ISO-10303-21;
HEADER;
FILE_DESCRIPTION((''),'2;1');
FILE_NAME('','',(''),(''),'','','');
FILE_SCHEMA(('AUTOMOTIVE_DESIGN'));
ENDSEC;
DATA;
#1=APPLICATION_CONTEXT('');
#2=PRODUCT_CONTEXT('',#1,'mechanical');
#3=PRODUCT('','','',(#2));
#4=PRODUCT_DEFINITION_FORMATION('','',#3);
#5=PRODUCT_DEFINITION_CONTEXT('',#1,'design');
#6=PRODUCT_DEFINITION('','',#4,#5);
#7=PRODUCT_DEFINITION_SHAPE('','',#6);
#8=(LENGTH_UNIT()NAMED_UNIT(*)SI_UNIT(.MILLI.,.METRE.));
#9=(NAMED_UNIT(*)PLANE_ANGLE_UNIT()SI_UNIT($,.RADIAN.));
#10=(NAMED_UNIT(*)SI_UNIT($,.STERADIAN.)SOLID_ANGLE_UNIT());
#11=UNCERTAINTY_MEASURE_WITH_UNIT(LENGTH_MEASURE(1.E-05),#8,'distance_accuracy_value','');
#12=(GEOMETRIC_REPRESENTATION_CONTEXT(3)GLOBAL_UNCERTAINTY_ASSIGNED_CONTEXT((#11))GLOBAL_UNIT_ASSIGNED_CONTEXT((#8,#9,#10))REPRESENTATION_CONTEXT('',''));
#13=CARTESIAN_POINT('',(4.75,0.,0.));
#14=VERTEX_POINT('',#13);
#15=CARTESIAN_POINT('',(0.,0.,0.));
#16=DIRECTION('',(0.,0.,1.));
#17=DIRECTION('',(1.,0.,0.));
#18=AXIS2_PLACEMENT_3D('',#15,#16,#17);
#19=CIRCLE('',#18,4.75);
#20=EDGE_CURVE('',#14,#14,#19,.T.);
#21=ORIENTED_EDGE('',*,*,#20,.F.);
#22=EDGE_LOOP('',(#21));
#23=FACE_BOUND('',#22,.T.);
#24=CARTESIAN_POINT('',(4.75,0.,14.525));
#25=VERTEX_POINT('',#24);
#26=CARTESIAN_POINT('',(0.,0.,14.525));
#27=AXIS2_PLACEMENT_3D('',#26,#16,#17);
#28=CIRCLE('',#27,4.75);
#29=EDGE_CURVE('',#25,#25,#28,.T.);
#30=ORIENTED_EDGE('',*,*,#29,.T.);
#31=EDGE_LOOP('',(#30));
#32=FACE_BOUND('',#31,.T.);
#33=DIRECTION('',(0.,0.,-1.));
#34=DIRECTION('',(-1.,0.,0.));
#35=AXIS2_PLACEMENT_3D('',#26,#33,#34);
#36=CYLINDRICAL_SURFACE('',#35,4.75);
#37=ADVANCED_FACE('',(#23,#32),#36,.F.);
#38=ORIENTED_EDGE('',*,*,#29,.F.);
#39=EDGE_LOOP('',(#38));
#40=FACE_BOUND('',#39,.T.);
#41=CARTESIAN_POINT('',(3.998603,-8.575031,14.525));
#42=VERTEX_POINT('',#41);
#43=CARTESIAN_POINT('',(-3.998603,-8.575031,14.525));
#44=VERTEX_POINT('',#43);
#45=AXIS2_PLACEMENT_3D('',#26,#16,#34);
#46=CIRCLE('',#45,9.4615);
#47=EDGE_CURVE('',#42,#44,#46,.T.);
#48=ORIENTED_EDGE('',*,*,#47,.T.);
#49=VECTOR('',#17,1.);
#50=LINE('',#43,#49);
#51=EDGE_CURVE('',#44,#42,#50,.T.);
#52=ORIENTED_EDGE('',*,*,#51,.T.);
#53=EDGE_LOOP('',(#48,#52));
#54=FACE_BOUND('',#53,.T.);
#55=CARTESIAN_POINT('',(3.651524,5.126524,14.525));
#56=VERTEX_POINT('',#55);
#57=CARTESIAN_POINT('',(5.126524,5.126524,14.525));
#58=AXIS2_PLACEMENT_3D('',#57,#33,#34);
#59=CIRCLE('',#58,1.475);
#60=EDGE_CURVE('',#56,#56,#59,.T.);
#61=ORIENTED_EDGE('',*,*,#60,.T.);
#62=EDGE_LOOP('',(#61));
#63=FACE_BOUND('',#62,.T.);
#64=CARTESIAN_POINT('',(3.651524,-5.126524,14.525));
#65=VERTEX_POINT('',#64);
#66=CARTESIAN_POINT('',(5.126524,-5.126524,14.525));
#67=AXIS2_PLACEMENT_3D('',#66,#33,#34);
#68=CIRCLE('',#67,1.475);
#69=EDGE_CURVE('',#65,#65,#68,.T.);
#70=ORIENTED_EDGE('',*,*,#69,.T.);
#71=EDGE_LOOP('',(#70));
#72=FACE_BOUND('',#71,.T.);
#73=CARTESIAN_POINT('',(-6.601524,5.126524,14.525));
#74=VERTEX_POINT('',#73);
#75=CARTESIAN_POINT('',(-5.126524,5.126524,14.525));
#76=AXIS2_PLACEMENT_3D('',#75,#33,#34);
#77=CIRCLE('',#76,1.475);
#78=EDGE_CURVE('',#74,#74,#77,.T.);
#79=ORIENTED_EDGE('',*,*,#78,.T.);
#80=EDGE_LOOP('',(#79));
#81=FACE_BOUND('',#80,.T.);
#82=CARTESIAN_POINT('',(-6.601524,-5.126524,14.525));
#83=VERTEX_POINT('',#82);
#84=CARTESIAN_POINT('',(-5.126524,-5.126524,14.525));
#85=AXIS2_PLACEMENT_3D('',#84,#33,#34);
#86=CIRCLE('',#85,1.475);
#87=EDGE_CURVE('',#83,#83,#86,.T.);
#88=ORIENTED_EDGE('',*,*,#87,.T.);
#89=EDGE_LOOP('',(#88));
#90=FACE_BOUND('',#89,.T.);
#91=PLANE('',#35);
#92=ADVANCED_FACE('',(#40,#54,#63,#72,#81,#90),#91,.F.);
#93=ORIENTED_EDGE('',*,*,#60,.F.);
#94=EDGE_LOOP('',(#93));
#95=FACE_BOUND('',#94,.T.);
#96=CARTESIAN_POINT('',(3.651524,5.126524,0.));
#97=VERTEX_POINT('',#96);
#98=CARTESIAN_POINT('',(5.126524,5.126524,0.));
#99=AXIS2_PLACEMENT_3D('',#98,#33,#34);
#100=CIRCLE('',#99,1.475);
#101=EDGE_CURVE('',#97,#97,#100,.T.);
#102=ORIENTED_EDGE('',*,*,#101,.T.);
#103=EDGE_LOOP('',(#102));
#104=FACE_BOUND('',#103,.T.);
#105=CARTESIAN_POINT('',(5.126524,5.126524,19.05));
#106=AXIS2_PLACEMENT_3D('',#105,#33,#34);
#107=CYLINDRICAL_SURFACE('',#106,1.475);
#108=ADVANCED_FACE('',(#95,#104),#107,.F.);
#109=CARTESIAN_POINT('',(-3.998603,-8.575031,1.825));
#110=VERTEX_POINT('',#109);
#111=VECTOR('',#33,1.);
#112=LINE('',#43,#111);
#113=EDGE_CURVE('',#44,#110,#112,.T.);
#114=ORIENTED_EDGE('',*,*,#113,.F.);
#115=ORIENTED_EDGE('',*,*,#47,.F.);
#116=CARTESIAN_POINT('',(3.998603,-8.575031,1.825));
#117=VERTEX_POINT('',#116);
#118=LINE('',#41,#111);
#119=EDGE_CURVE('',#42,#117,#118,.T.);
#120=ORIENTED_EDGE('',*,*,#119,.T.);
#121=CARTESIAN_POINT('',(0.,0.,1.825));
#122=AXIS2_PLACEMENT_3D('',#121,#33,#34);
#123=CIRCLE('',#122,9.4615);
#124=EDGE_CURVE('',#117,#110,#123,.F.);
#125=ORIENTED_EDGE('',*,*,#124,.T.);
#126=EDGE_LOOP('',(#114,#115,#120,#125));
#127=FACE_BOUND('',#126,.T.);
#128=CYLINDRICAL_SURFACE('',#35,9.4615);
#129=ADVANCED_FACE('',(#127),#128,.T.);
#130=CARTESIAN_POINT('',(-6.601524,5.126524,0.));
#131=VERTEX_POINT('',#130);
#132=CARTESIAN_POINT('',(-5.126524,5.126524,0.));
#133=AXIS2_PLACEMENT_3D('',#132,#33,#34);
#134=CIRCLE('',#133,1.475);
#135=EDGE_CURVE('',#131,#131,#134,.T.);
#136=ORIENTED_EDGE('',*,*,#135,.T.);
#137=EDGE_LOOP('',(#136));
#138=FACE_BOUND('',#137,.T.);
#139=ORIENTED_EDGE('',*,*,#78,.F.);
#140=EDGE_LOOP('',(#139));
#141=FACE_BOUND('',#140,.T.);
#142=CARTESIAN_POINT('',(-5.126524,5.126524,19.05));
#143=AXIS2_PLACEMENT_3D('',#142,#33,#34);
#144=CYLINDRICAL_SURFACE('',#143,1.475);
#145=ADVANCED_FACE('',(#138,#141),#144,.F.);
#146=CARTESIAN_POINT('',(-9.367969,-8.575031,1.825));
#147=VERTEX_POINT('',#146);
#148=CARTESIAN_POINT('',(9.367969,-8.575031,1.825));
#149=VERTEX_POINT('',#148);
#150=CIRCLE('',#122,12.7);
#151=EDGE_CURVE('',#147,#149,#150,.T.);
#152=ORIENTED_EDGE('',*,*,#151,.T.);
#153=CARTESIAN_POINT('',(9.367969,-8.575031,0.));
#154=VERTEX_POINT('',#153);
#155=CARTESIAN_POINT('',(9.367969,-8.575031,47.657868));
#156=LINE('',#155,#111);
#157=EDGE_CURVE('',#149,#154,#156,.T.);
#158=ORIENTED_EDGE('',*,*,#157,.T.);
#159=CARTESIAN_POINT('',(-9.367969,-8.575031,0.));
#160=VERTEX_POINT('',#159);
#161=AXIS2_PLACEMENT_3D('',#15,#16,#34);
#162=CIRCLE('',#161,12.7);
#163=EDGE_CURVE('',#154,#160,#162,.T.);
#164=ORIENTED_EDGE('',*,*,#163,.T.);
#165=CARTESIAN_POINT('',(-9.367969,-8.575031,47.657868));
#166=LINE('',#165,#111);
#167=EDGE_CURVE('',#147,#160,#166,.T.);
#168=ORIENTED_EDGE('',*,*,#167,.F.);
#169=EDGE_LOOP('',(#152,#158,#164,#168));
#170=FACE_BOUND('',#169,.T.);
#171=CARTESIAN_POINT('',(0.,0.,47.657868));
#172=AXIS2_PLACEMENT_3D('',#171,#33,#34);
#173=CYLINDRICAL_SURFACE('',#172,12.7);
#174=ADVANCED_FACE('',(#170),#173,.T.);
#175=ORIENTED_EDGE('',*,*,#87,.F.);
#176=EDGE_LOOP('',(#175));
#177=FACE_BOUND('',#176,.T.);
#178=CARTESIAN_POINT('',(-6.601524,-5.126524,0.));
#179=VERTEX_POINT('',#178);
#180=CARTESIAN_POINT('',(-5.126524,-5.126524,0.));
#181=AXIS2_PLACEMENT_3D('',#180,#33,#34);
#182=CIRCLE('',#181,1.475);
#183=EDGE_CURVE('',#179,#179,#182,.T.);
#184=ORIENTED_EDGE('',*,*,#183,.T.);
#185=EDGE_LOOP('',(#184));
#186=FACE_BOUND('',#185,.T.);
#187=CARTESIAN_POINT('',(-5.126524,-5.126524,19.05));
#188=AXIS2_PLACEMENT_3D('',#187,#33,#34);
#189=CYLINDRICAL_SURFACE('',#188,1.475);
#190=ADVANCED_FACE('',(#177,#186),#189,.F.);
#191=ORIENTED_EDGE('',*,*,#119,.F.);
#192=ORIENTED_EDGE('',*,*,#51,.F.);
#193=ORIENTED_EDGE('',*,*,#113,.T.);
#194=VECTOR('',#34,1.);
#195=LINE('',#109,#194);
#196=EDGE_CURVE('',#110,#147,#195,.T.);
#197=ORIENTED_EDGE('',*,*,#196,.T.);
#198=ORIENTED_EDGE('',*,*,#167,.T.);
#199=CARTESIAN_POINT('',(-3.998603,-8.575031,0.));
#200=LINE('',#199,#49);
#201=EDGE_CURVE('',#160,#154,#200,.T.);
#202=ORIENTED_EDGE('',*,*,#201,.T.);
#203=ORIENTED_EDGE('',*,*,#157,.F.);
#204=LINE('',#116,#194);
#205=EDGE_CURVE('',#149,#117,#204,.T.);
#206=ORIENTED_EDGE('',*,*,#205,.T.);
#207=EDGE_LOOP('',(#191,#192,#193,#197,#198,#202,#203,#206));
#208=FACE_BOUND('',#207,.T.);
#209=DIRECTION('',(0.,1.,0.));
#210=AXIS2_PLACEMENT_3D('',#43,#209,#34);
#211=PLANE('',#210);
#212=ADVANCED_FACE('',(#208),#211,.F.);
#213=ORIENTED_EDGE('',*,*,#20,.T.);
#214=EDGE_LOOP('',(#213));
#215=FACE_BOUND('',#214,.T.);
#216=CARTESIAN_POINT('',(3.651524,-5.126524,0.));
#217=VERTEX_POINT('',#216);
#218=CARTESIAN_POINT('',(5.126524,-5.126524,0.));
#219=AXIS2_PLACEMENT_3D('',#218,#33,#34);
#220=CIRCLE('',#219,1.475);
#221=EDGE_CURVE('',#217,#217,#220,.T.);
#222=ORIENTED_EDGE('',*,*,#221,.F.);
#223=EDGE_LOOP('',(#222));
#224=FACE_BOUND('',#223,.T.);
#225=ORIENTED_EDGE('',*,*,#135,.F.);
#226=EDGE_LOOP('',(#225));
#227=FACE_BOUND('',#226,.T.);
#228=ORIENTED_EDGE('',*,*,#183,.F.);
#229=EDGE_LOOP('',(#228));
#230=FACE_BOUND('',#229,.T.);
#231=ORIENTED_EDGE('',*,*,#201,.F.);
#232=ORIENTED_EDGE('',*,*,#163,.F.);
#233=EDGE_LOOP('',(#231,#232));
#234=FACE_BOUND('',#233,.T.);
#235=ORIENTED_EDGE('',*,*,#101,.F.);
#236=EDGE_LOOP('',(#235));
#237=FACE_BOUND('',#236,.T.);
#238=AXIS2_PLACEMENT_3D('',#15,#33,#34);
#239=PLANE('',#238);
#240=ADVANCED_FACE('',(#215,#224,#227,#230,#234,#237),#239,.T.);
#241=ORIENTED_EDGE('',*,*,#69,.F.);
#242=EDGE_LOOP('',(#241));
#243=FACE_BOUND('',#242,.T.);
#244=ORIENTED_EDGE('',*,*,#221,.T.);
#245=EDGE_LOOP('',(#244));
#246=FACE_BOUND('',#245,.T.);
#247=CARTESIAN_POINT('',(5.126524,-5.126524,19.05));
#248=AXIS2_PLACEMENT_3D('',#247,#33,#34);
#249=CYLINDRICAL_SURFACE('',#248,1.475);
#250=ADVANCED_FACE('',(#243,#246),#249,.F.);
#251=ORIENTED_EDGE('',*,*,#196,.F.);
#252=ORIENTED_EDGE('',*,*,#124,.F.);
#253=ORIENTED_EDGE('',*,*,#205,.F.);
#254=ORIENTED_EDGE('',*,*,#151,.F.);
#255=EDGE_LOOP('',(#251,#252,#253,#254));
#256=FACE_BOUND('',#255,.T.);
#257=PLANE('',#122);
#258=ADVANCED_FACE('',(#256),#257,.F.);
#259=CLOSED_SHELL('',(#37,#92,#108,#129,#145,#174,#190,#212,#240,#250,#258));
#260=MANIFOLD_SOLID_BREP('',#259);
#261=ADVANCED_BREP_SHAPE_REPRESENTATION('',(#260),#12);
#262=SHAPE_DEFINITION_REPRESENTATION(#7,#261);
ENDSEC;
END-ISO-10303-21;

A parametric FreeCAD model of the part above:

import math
import FreeCAD as App
import Part
import Sketcher
from FreeCAD import Vector
Q = App.Units.Quantity

doc = App.newDocument("Part")
body = doc.addObject("PartDesign::Body", "Body")

sketch1 = body.newObject("Sketcher::SketchObject", "Sketch")
sketch1.AttachmentSupport = (doc.getObject("XY_Plane"), [""])
sketch1.MapMode = "FlatFace"
sketch1.addGeometry([
    Part.LineSegment(Vector(-4, -8.6, 0), Vector(4, -8.6, 0)),
    Part.ArcOfCircle(Part.Circle(Vector(0, 0, 0), Vector(0, 0, 1), 9.5), math.radians(-65), math.radians(245)),
    Part.Circle(Vector(0, 0, 0), Vector(0, 0, 1), 4.8),
], False)
sketch1.addConstraint([
    Sketcher.Constraint("Coincident", 0, 1, 1, 2),
    Sketcher.Constraint("Coincident", 1, 1, 0, 2),
    Sketcher.Constraint("Horizontal", 0),
    Sketcher.Constraint("Coincident", 1, 3, -1, 1),
    Sketcher.Constraint("Coincident", 2, 3, -1, 1),
    Sketcher.Constraint("Radius", 1, Q("0.3725 in")),
    Sketcher.Constraint("Diameter", 2, 9.5),
    Sketcher.Constraint("DistanceX", 0, 1, 0, 2, 7.997205),
])
pad1 = body.newObject("PartDesign::Pad", "Pad")
pad1.Profile = sketch1
pad1.Length = 14.525

sketch2 = body.newObject("Sketcher::SketchObject", "Sketch001")
sketch2.AttachmentSupport = (doc.getObject("XY_Plane"), [""])
sketch2.MapMode = "FlatFace"
sketch2.addGeometry([
    Part.Circle(Vector(-5.1, -5.1, 0), Vector(0, 0, 1), 1.5),
    Part.Circle(Vector(5.1, -5.1, 0), Vector(0, 0, 1), 1.5),
    Part.Circle(Vector(5.1, 5.1, 0), Vector(0, 0, 1), 1.5),
    Part.Circle(Vector(-5.1, 5.1, 0), Vector(0, 0, 1), 1.5),
], False)
sketch2.addConstraint([
    Sketcher.Constraint("Equal", 0, 1),
    Sketcher.Constraint("Equal", 1, 2),
    Sketcher.Constraint("Equal", 2, 3),
    Sketcher.Constraint("Symmetric", 0, 3, 2, 3, -1, 1),
    Sketcher.Constraint("Symmetric", 1, 3, 3, 3, -1, 1),
    Sketcher.Constraint("Symmetric", 0, 3, 1, 3, -2),
    Sketcher.Constraint("Diameter", 0, 2.95),
    Sketcher.Constraint("DistanceX", 0, 3, 1, 3, 10.253048),
    Sketcher.Constraint("DistanceY", 1, 3, 2, 3, 10.253048),
])
pocket1 = body.newObject("PartDesign::Pocket", "Pocket")
pocket1.Profile = sketch2
pocket1.Length = Q("0.75 in")
pocket1.Reversed = True

sketch3 = body.newObject("Sketcher::SketchObject", "Sketch002")
sketch3.AttachmentSupport = (doc.getObject("XY_Plane"), [""])
sketch3.MapMode = "FlatFace"
sketch3.addGeometry([
    Part.LineSegment(Vector(-9, -9, 0), Vector(-4, -9, 0)),
    Part.ArcOfCircle(Part.Circle(Vector(0, 0, 0), Vector(0, 0, 1), 9), math.radians(-65), math.radians(245)),
    Part.LineSegment(Vector(4, -9, 0), Vector(9, -9, 0)),
    Part.ArcOfCircle(Part.Circle(Vector(0, 0, 0), Vector(0, 0, 1), 13), math.radians(-42), math.radians(222)),
], False)
sketch3.addConstraint([
    Sketcher.Constraint("Coincident", 0, 2, 1, 2),
    Sketcher.Constraint("Coincident", 1, 1, 2, 1),
    Sketcher.Constraint("Coincident", 2, 2, 3, 1),
    Sketcher.Constraint("Coincident", 3, 2, 0, 1),
    Sketcher.Constraint("Horizontal", 0),
    Sketcher.Constraint("Horizontal", 2),
    Sketcher.Constraint("Coincident", 1, 3, -1, 1),
    Sketcher.Constraint("Coincident", 3, 3, -1, 1),
    Sketcher.Constraint("Horizontal", 0, 2, 1, 1),
    Sketcher.Constraint("Radius", 3, Q("0.5 in")),
    Sketcher.Constraint("Radius", 1, Q("0.3725 in")),
    Sketcher.Constraint("DistanceX", 0, 1, 0, 2, 5.369366),
])
pad2 = body.newObject("PartDesign::Pad", "Pad001")
pad2.Profile = sketch3
pad2.Length = 1.825

doc.recompute()
